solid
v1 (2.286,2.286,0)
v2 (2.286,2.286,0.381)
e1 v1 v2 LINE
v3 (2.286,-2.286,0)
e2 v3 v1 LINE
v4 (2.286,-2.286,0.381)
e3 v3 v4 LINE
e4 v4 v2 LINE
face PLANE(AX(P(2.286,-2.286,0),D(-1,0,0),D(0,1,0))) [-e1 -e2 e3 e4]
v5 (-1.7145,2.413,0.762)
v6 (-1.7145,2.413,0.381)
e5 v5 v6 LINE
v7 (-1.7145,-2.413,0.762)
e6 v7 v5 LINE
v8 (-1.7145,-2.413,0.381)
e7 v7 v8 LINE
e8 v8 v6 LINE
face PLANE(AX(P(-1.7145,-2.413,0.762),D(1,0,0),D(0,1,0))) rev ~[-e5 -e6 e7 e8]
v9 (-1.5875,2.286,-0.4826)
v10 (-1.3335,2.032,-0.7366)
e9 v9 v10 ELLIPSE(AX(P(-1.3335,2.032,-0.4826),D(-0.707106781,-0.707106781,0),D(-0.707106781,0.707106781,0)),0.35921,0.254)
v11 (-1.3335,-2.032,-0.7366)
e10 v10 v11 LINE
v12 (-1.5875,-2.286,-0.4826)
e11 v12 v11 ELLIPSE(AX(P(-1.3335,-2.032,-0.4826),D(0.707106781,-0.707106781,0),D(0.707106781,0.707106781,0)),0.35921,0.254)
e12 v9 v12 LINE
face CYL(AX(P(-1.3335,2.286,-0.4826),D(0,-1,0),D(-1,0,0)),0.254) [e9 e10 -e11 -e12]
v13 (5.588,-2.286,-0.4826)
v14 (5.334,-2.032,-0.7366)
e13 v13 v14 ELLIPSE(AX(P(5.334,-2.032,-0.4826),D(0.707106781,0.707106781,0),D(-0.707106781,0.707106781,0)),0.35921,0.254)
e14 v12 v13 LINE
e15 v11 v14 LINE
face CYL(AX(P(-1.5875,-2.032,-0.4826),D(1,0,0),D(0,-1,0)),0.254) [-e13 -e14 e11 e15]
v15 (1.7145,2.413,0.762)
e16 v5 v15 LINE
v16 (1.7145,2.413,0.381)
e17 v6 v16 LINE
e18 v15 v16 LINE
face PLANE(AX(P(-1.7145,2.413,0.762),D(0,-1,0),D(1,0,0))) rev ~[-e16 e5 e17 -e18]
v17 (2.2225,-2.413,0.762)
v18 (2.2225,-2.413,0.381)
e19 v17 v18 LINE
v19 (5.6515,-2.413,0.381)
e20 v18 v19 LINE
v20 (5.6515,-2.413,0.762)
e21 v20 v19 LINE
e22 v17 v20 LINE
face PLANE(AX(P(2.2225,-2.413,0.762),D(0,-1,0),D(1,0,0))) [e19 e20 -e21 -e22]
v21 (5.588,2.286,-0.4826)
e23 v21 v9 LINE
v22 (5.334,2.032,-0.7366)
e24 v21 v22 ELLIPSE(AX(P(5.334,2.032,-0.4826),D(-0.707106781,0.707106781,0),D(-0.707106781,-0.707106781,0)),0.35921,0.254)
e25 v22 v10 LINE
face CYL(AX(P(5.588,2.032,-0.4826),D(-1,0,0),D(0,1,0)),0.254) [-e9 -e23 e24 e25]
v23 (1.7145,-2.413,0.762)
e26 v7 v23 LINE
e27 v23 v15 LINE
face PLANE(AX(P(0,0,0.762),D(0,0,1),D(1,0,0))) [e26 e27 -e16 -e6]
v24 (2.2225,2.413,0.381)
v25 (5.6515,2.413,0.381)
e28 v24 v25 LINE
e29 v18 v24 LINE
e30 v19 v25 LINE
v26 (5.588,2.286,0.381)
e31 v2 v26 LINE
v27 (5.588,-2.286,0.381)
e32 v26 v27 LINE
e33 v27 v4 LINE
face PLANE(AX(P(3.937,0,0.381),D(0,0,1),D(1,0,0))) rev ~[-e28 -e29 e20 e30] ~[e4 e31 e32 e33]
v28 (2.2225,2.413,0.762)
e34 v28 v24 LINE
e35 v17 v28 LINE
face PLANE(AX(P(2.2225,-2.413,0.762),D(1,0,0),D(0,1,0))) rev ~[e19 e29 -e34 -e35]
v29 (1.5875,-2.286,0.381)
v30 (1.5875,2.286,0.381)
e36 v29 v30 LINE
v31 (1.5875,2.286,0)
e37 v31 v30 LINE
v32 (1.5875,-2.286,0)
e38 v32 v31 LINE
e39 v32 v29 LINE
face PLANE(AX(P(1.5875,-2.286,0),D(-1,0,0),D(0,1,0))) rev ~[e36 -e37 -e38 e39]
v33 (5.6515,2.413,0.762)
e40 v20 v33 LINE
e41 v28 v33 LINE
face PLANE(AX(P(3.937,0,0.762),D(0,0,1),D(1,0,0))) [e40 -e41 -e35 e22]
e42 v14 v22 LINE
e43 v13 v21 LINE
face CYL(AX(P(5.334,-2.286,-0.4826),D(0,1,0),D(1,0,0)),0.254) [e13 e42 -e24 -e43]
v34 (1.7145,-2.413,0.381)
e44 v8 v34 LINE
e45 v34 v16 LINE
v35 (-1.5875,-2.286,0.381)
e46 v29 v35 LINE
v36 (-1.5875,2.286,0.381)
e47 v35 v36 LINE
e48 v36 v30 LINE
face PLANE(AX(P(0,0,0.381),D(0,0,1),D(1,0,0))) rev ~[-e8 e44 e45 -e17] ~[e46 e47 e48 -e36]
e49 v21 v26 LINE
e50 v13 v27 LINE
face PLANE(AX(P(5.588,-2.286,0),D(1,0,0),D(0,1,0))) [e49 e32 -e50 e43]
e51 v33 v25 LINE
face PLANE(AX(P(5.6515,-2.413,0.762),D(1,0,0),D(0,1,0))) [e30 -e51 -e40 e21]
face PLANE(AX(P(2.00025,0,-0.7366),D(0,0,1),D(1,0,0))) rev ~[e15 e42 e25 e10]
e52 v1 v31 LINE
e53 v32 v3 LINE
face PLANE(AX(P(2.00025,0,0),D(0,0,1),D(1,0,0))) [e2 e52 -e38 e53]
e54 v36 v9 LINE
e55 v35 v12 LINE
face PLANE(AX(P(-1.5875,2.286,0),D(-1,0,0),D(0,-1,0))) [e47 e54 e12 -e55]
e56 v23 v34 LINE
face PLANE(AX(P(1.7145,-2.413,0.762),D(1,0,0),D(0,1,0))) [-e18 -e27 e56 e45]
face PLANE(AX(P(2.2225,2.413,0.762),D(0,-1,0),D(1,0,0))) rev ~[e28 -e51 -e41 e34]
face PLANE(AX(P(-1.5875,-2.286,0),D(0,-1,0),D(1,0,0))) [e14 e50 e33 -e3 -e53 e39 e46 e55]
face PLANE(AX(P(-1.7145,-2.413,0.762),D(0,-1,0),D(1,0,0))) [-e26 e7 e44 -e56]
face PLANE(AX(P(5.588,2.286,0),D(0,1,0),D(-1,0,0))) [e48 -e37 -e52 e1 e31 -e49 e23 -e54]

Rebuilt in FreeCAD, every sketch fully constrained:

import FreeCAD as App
import Part
import Sketcher
Q = App.Units.Quantity


def edges_at(feature, points):
    """Names of the edges that pass closest to the given points."""
    edges = feature.Shape.Edges
    near = lambda p: min(range(len(edges)), key=lambda i: edges[i].distToShape(Part.Vertex(*p))[0])
    return sorted({f"Edge{near(p) + 1}" for p in points})


def add_polygon(sketch, points):
    """Adds a closed chain of lines whose ends are joined by coincident constraints."""
    first, n = sketch.GeometryCount, len(points)
    for a, b in zip(points, points[1:] + points[:1]):
        sketch.addGeometry(Part.LineSegment(App.Vector(*a, 0), App.Vector(*b, 0)), False)
    for i in range(n):
        sketch.addConstraint(Sketcher.Constraint("Coincident", first + i, 2, first + (i + 1) % n, 1))

doc = App.newDocument("Part")
body = doc.addObject("PartDesign::Body", "Body")

# Sketch on XY plane
sketch1 = body.newObject("Sketcher::SketchObject", "Sketch")
sketch1.AttachmentSupport = (doc.getObject("XY_Plane"), [""])
sketch1.MapMode = "FlatFace"
add_polygon(sketch1, [(-1.5875, 2.286), (-1.5875, -2.286), (1.5875, -2.286), (1.5875, 2.286)])  # lines 0-3
sketch1.addConstraint(Sketcher.Constraint("Vertical", 0))
sketch1.addConstraint(Sketcher.Constraint("Horizontal", 1))
sketch1.addConstraint(Sketcher.Constraint("Vertical", 2))
sketch1.addConstraint(Sketcher.Constraint("Horizontal", 3))
sketch1.addConstraint(Sketcher.Constraint("Symmetric", 0, 2, 2, 2, -1, 1))
sketch1.addConstraint(Sketcher.Constraint("DistanceY", 0, 2, 0, 1, Q("0.18 in")))
sketch1.addConstraint(Sketcher.Constraint("DistanceX", 1, 1, 1, 2, Q("0.125 in")))
pad1 = body.newObject("PartDesign::Pad", "Pad")
pad1.Profile = sketch1
pad1.Length = Q("0.03 in")
body2 = doc.addObject("PartDesign::Body", "Body001")

# Sketch on XY plane
sketch2 = body2.newObject("Sketcher::SketchObject", "Sketch001")
sketch2.AttachmentSupport = (doc.getObject("XY_Plane001"), [""])
sketch2.MapMode = "FlatFace"
add_polygon(sketch2, [(2.286, 2.286), (2.286, -2.286), (5.588, -2.286), (5.588, 2.286)])  # lines 0-3
sketch2.addConstraint(Sketcher.Constraint("Vertical", 0))
sketch2.addConstraint(Sketcher.Constraint("Horizontal", 1))
sketch2.addConstraint(Sketcher.Constraint("Vertical", 2))
sketch2.addConstraint(Sketcher.Constraint("Horizontal", 3))
sketch2.addConstraint(Sketcher.Constraint("DistanceX", 1, 1, 1, 2, Q("0.13 in")))
sketch2.addConstraint(Sketcher.Constraint("DistanceY", 0, 2, 0, 1, Q("0.18 in")))
sketch2.addConstraint(Sketcher.Constraint("DistanceX", -1, 1, 0, 2, Q("0.09 in")))
sketch2.addConstraint(Sketcher.Constraint("DistanceY", 0, 2, -1, 1, Q("0.09 in")))
pad2 = body2.newObject("PartDesign::Pad", "Pad001")
pad2.Profile = sketch2
pad2.Length = Q("0.03 in")
body.AllowCompound = True
doc.recompute()

boolean = body.newObject("PartDesign::Boolean", "Boolean")
boolean.Type = "Fuse"
boolean.addObjects([body2])

# Sketch on XY plane
sketch3 = body.newObject("Sketcher::SketchObject", "Sketch002")
sketch3.AttachmentSupport = (doc.getObject("XY_Plane"), [""])
sketch3.MapMode = "FlatFace"
add_polygon(sketch3, [(-1.5875, -2.286), (5.588, -2.286), (5.588, 2.286), (-1.5875, 2.286)])  # lines 0-3
sketch3.addConstraint(Sketcher.Constraint("Horizontal", 0))
sketch3.addConstraint(Sketcher.Constraint("Vertical", 1))
sketch3.addConstraint(Sketcher.Constraint("Horizontal", 2))
sketch3.addConstraint(Sketcher.Constraint("Vertical", 3))
sketch3.addConstraint(Sketcher.Constraint("DistanceY", 1, 1, 1, 2, Q("0.18 in")))
sketch3.addConstraint(Sketcher.Constraint("DistanceX", -1, 1, 0, 2, Q("0.22 in")))
sketch3.addConstraint(Sketcher.Constraint("DistanceY", 0, 2, -1, 1, Q("0.09 in")))
sketch3.addConstraint(Sketcher.Constraint("DistanceX", 0, 1, 0, 2, Q("0.2825 in")))
pad3 = body.newObject("PartDesign::Pad", "Pad002")
pad3.Profile = sketch3
pad3.Length = Q("0.029 in")
pad3.Reversed = True
doc.recompute()

fillet = body.newObject("PartDesign::Fillet", "Fillet")
fillet.Base = (pad3, edges_at(pad3, [
    (2, 2.286, -0.737),
    (5.588, 0, -0.737),
    (2, -2.286, -0.737),
    (-1.587, 0, -0.737),
]))
fillet.Radius = Q("0.01 in")

# Sketch on XY plane
sketch4 = body.newObject("Sketcher::SketchObject", "Sketch003")
sketch4.AttachmentSupport = (doc.getObject("XY_Plane"), [""])
sketch4.MapMode = "FlatFace"
sketch4.AttachmentOffset = App.Placement(App.Vector(0, 0, 0.03 * 25.4), App.Rotation())
add_polygon(sketch4, [(-1.7145, 2.413), (-1.7145, -2.413), (1.7145, -2.413), (1.7145, 2.413)])  # lines 0-3
add_polygon(sketch4, [(2.2225, 2.413), (2.2225, -2.413), (5.6515, -2.413), (5.6515, 2.413)])  # lines 4-7
sketch4.addConstraint(Sketcher.Constraint("Vertical", 0))
sketch4.addConstraint(Sketcher.Constraint("Horizontal", 1))
sketch4.addConstraint(Sketcher.Constraint("Vertical", 2))
sketch4.addConstraint(Sketcher.Constraint("Horizontal", 3))
sketch4.addConstraint(Sketcher.Constraint("Vertical", 4))
sketch4.addConstraint(Sketcher.Constraint("Horizontal", 5))
sketch4.addConstraint(Sketcher.Constraint("Vertical", 6))
sketch4.addConstraint(Sketcher.Constraint("Horizontal", 7))
sketch4.addConstraint(Sketcher.Constraint("Symmetric", 0, 2, 2, 2, -1, 1))
sketch4.addConstraint(Sketcher.Constraint("Horizontal", 1, 2, 4, 2))
sketch4.addConstraint(Sketcher.Constraint("Horizontal", 3, 2, 6, 2))
sketch4.addConstraint(Sketcher.Constraint("Equal", 3, 5))
sketch4.addConstraint(Sketcher.Constraint("DistanceY", 0, 2, 0, 1, Q("0.19 in")))
sketch4.addConstraint(Sketcher.Constraint("DistanceX", 1, 1, 1, 2, Q("0.135 in")))
sketch4.addConstraint(Sketcher.Constraint("DistanceX", 1, 2, 4, 2, Q("0.02 in")))
pad4 = body.newObject("PartDesign::Pad", "Pad003")
pad4.Profile = sketch4
pad4.Length = Q("0.015 in")
pad4.Reversed = True

doc.recompute()
